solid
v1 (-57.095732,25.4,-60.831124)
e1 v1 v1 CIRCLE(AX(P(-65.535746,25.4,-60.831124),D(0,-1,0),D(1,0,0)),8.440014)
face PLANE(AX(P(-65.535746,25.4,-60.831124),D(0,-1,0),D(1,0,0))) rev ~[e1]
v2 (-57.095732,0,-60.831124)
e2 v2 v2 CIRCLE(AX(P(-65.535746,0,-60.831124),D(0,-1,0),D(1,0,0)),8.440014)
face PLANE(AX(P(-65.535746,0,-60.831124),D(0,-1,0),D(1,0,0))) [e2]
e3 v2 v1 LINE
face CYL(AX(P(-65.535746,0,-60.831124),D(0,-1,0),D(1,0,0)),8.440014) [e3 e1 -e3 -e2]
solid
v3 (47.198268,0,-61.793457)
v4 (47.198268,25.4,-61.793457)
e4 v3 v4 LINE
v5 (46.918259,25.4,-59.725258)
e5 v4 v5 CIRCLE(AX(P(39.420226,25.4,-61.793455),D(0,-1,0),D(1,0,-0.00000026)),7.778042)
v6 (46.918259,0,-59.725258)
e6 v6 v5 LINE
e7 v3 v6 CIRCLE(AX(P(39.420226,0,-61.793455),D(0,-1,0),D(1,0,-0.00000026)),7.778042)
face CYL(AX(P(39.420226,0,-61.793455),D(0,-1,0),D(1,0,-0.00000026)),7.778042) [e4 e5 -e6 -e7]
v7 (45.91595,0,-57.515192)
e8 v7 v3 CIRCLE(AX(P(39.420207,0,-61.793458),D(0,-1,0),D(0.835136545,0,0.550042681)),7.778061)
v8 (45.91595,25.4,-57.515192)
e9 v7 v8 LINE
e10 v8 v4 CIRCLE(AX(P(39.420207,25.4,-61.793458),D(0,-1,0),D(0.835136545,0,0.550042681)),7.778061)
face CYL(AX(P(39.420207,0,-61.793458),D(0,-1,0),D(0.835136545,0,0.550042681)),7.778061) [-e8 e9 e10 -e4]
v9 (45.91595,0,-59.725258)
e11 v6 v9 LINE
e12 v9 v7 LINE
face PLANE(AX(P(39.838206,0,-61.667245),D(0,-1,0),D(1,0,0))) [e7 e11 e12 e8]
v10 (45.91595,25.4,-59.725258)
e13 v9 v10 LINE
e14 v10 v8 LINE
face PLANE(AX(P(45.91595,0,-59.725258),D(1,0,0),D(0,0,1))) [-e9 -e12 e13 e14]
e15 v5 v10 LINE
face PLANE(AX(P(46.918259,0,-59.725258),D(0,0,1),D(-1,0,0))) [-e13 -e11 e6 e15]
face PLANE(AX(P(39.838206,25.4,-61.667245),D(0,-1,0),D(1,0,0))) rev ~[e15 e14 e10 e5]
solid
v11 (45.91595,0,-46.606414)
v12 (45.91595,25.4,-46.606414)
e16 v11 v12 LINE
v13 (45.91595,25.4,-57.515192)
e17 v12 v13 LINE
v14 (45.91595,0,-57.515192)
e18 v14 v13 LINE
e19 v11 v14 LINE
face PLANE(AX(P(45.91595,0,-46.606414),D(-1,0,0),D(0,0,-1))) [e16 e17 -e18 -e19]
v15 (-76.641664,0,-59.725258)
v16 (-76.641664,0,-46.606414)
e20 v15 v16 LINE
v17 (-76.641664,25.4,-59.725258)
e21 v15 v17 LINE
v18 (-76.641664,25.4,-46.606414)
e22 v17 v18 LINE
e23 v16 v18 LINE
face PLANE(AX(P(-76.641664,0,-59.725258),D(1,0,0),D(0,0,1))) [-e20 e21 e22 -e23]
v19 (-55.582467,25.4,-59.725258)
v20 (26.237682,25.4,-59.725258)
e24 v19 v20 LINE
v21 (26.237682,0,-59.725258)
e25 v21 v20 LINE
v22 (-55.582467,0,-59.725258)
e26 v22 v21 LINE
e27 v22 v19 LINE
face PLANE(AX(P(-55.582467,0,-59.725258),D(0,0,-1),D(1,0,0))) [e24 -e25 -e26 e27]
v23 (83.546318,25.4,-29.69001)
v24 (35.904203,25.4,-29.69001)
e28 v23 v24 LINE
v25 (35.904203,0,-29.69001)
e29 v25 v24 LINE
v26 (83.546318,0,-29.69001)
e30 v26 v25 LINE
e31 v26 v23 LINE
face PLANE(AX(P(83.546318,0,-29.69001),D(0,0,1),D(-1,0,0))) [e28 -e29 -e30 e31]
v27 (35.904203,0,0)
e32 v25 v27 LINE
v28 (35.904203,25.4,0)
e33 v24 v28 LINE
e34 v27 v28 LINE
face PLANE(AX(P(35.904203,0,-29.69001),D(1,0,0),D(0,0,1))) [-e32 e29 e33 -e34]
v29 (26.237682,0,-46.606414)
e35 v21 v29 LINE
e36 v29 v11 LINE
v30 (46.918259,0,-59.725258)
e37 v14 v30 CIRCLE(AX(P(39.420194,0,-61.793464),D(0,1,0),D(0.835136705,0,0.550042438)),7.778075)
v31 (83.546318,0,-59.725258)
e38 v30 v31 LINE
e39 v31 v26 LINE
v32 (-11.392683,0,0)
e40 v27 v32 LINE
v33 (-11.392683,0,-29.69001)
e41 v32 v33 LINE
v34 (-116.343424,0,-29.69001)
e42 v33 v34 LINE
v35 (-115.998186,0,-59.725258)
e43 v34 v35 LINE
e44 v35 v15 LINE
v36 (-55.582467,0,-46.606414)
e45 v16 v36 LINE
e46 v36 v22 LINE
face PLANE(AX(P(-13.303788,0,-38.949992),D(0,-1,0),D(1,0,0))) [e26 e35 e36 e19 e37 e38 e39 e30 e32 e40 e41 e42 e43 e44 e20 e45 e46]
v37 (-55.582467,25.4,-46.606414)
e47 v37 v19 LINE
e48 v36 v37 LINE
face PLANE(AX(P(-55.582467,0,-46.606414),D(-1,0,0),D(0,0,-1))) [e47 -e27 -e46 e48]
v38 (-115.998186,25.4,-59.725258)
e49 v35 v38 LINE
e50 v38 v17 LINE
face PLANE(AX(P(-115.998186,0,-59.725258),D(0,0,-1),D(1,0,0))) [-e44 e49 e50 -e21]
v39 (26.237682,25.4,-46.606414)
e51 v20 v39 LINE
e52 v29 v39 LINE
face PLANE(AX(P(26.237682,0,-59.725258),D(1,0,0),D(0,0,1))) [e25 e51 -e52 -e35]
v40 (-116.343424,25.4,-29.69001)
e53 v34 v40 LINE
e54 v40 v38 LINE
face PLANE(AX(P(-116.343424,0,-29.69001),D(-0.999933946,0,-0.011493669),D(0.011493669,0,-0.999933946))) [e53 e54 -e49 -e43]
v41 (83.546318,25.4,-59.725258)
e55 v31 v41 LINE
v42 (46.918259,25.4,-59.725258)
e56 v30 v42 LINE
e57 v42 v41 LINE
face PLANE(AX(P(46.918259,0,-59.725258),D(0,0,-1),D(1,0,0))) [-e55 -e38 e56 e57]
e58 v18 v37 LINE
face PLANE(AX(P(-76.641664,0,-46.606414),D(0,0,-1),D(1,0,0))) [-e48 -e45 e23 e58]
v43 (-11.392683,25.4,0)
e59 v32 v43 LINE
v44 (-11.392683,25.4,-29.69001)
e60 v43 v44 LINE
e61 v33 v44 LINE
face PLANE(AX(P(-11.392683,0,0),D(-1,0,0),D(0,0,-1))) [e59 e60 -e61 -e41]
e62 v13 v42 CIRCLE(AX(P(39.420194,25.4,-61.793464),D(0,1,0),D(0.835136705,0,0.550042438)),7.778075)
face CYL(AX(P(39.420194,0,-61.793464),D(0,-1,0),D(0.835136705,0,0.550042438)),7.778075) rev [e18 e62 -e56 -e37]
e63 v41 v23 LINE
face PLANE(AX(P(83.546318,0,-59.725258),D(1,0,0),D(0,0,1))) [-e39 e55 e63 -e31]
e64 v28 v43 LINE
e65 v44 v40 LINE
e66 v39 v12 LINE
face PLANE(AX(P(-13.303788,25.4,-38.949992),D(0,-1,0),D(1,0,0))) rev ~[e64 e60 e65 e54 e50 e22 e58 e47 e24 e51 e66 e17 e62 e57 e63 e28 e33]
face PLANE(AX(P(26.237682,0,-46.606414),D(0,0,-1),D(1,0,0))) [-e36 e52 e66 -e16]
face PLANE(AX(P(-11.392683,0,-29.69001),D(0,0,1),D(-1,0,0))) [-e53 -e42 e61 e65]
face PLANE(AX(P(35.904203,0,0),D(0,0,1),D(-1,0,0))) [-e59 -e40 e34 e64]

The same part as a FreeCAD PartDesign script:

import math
import FreeCAD as App
import Part
import Sketcher
from FreeCAD import Vector
Q = App.Units.Quantity

doc = App.newDocument("Part")
body = doc.addObject("PartDesign::Body", "Body")
body.AllowCompound = True

sketch1 = body.newObject("Sketcher::SketchObject", "Sketch")
sketch1.AttachmentSupport = (doc.getObject("XZ_Plane"), [""])
sketch1.MapMode = "FlatFace"
sketch1.addGeometry(Part.LineSegment(Vector(-116.343424, -29.69001, 0), Vector(-115.998186, -59.725258, 0)), False)
sketch1.addGeometry(Part.LineSegment(Vector(-115.998186, -59.725258, 0), Vector(-76.641664, -59.725258, 0)), False)
sketch1.addGeometry(Part.LineSegment(Vector(-76.641664, -59.725258, 0), Vector(-76.641664, -46.606414, 0)), False)
sketch1.addGeometry(Part.LineSegment(Vector(-76.641664, -46.606414, 0), Vector(-55.582467, -46.606414, 0)), False)
sketch1.addGeometry(Part.LineSegment(Vector(-55.582467, -46.606414, 0), Vector(-55.582467, -59.725258, 0)), False)
sketch1.addGeometry(Part.LineSegment(Vector(-55.582467, -59.725258, 0), Vector(26.237682, -59.725258, 0)), False)
sketch1.addGeometry(Part.LineSegment(Vector(26.237682, -59.725258, 0), Vector(26.237682, -46.606414, 0)), False)
sketch1.addGeometry(Part.LineSegment(Vector(26.237682, -46.606414, 0), Vector(45.91595, -46.606414, 0)), False)
sketch1.addGeometry(Part.LineSegment(Vector(45.91595, -46.606414, 0), Vector(45.91595, -57.515192, 0)), False)
sketch1.addGeometry(Part.ArcOfCircle(Part.Circle(Vector(39.420194, -61.793464, 0), Vector(0, 0, 1), 7.778075), math.radians(15.420555), math.radians(33.369924)), False)
sketch1.addGeometry(Part.LineSegment(Vector(46.918259, -59.725258, 0), Vector(83.546318, -59.725258, 0)), False)
sketch1.addGeometry(Part.LineSegment(Vector(83.546318, -59.725258, 0), Vector(83.546318, -29.69001, 0)), False)
sketch1.addGeometry(Part.LineSegment(Vector(83.546318, -29.69001, 0), Vector(35.904203, -29.69001, 0)), False)
sketch1.addGeometry(Part.LineSegment(Vector(35.904203, -29.69001, 0), Vector(35.904203, 0, 0)), False)
sketch1.addGeometry(Part.LineSegment(Vector(35.904203, 0, 0), Vector(-11.392683, 0, 0)), False)
sketch1.addGeometry(Part.LineSegment(Vector(-11.392683, 0, 0), Vector(-11.392683, -29.69001, 0)), False)
sketch1.addGeometry(Part.LineSegment(Vector(-11.392683, -29.69001, 0), Vector(-116.343424, -29.69001, 0)), False)
sketch1.addGeometry(Part.LineSegment(Vector(45.91595, -59.725258, 0), Vector(45.91595, -57.515192, 0)), False)
sketch1.addGeometry(Part.ArcOfCircle(Part.Circle(Vector(39.420207, -61.793458, 0), Vector(0, 0, 1), 7.778061), math.radians(33.369941), math.radians(360.000004)), False)
sketch1.addGeometry(Part.ArcOfCircle(Part.Circle(Vector(39.420226, -61.793455, 0), Vector(0, 0, 1), 7.778042), math.radians(-0.000015), math.radians(15.420556)), False)
sketch1.addGeometry(Part.LineSegment(Vector(46.918259, -59.725258, 0), Vector(45.91595, -59.725258, 0)), False)
sketch1.addGeometry(Part.Circle(Vector(-65.535746, -60.831124, 0), Vector(0, 0, 1), 8.440014), False)
sketch1.addConstraint(Sketcher.Constraint("Coincident", 0, 2, 1, 1))
sketch1.addConstraint(Sketcher.Constraint("Coincident", 1, 2, 2, 1))
sketch1.addConstraint(Sketcher.Constraint("Coincident", 2, 2, 3, 1))
sketch1.addConstraint(Sketcher.Constraint("Coincident", 3, 2, 4, 1))
sketch1.addConstraint(Sketcher.Constraint("Coincident", 4, 2, 5, 1))
sketch1.addConstraint(Sketcher.Constraint("Coincident", 5, 2, 6, 1))
sketch1.addConstraint(Sketcher.Constraint("Coincident", 6, 2, 7, 1))
sketch1.addConstraint(Sketcher.Constraint("Coincident", 7, 2, 8, 1))
sketch1.addConstraint(Sketcher.Constraint("Coincident", 8, 2, 9, 2))
sketch1.addConstraint(Sketcher.Constraint("Coincident", 9, 1, 10, 1))
sketch1.addConstraint(Sketcher.Constraint("Coincident", 10, 2, 11, 1))
sketch1.addConstraint(Sketcher.Constraint("Coincident", 11, 2, 12, 1))
sketch1.addConstraint(Sketcher.Constraint("Coincident", 12, 2, 13, 1))
sketch1.addConstraint(Sketcher.Constraint("Coincident", 13, 2, 14, 1))
sketch1.addConstraint(Sketcher.Constraint("Coincident", 14, 2, 15, 1))
sketch1.addConstraint(Sketcher.Constraint("Coincident", 15, 2, 16, 1))
sketch1.addConstraint(Sketcher.Constraint("Coincident", 16, 2, 0, 1))
sketch1.addConstraint(Sketcher.Constraint("Coincident", 17, 2, 18, 1))
sketch1.addConstraint(Sketcher.Constraint("Tangent", 18, 2, 19, 1))
sketch1.addConstraint(Sketcher.Constraint("Coincident", 19, 2, 20, 1))
sketch1.addConstraint(Sketcher.Constraint("Coincident", 20, 2, 17, 1))
sketch1.addConstraint(Sketcher.Constraint("Horizontal", 1))
sketch1.addConstraint(Sketcher.Constraint("Vertical", 2))
sketch1.addConstraint(Sketcher.Constraint("Horizontal", 3))
sketch1.addConstraint(Sketcher.Constraint("Vertical", 4))
sketch1.addConstraint(Sketcher.Constraint("Horizontal", 5))
sketch1.addConstraint(Sketcher.Constraint("Vertical", 6))
sketch1.addConstraint(Sketcher.Constraint("Horizontal", 7))
sketch1.addConstraint(Sketcher.Constraint("Vertical", 8))
sketch1.addConstraint(Sketcher.Constraint("Horizontal", 10))
sketch1.addConstraint(Sketcher.Constraint("Vertical", 11))
sketch1.addConstraint(Sketcher.Constraint("Horizontal", 12))
sketch1.addConstraint(Sketcher.Constraint("Vertical", 13))
sketch1.addConstraint(Sketcher.Constraint("Horizontal", 14))
sketch1.addConstraint(Sketcher.Constraint("Vertical", 15))
sketch1.addConstraint(Sketcher.Constraint("Horizontal", 16))
sketch1.addConstraint(Sketcher.Constraint("Vertical", 17))
sketch1.addConstraint(Sketcher.Constraint("Horizontal", 20))
sketch1.addConstraint(Sketcher.Constraint("Coincident", 17, 2, 8, 2))
sketch1.addConstraint(Sketcher.Constraint("Coincident", 19, 2, 9, 1))
sketch1.addConstraint(Sketcher.Constraint("PointOnObject", 13, 2, -1))
sketch1.addConstraint(Sketcher.Constraint("Horizontal", 1, 2, 4, 2))
sketch1.addConstraint(Sketcher.Constraint("Horizontal", 3, 2, 6, 2))
sketch1.addConstraint(Sketcher.Constraint("Horizontal", 5, 2, 9, 1))
sketch1.addConstraint(Sketcher.Constraint("Horizontal", 12, 2, 15, 2))
sketch1.addConstraint(Sketcher.Constraint("Radius", 18, Q("7.778061 mm")))
sketch1.addConstraint(Sketcher.Constraint("DistanceY", 7, 2, 11, 2, Q("0.6660002 in")))
sketch1.addConstraint(Sketcher.Constraint("Diameter", 21, Q("16.880028 mm")))
sketch1.addConstraint(Sketcher.Constraint("Radius", 9, Q("7.778075 mm")))
sketch1.addConstraint(Sketcher.Constraint("Radius", 19, Q("7.778042 mm")))
sketch1.addConstraint(Sketcher.Constraint("DistanceX", 1, 1, 1, 2, Q("39.356522 mm")))
sketch1.addConstraint(Sketcher.Constraint("DistanceX", 5, 1, 5, 2, Q("81.820149 mm")))
sketch1.addConstraint(Sketcher.Constraint("DistanceX", 7, 1, 7, 2, Q("19.678268 mm")))
sketch1.addConstraint(Sketcher.Constraint("DistanceX", 10, 1, 10, 2, Q("36.628059 mm")))
sketch1.addConstraint(Sketcher.Constraint("DistanceX", 16, 2, 16, 1, Q("104.950741 mm")))
sketch1.addConstraint(Sketcher.Constraint("DistanceX", 20, 2, 20, 1, Q("1.002309 mm")))
sketch1.addConstraint(Sketcher.Constraint("DistanceY", 13, 1, 13, 2, Q("29.69001 mm")))
sketch1.addConstraint(Sketcher.Constraint("DistanceY", 18, 3, 0, 2, Q("2.0682 mm")))
sketch1.addConstraint(Sketcher.Constraint("DistanceY", 18, 2, 9, 1, Q("2.068199 mm")))
sketch1.addConstraint(Sketcher.Constraint("DistanceX", 3, 1, 3, 2, Q("21.059197 mm")))
sketch1.addConstraint(Sketcher.Constraint("DistanceX", 12, 2, 12, 1, Q("47.642115 mm")))
sketch1.addConstraint(Sketcher.Constraint("DistanceX", 14, 2, 14, 1, Q("47.296886 mm")))
sketch1.addConstraint(Sketcher.Constraint("DistanceY", 2, 1, 2, 2, Q("13.118844 mm")))
sketch1.addConstraint(Sketcher.Constraint("DistanceX", -1, 1, 5, 2, Q("26.237682 mm")))
sketch1.addConstraint(Sketcher.Constraint("DistanceX", 21, 3, 9, 3, Q("104.95594 mm")))
sketch1.addConstraint(Sketcher.Constraint("DistanceY", 9, 3, 21, 3, Q("0.96234 mm")))
pad1 = body.newObject("PartDesign::Pad", "Pad")
pad1.Profile = sketch1
pad1.Length = Q("1 in")
pad1.Reversed = True

doc.recompute()
